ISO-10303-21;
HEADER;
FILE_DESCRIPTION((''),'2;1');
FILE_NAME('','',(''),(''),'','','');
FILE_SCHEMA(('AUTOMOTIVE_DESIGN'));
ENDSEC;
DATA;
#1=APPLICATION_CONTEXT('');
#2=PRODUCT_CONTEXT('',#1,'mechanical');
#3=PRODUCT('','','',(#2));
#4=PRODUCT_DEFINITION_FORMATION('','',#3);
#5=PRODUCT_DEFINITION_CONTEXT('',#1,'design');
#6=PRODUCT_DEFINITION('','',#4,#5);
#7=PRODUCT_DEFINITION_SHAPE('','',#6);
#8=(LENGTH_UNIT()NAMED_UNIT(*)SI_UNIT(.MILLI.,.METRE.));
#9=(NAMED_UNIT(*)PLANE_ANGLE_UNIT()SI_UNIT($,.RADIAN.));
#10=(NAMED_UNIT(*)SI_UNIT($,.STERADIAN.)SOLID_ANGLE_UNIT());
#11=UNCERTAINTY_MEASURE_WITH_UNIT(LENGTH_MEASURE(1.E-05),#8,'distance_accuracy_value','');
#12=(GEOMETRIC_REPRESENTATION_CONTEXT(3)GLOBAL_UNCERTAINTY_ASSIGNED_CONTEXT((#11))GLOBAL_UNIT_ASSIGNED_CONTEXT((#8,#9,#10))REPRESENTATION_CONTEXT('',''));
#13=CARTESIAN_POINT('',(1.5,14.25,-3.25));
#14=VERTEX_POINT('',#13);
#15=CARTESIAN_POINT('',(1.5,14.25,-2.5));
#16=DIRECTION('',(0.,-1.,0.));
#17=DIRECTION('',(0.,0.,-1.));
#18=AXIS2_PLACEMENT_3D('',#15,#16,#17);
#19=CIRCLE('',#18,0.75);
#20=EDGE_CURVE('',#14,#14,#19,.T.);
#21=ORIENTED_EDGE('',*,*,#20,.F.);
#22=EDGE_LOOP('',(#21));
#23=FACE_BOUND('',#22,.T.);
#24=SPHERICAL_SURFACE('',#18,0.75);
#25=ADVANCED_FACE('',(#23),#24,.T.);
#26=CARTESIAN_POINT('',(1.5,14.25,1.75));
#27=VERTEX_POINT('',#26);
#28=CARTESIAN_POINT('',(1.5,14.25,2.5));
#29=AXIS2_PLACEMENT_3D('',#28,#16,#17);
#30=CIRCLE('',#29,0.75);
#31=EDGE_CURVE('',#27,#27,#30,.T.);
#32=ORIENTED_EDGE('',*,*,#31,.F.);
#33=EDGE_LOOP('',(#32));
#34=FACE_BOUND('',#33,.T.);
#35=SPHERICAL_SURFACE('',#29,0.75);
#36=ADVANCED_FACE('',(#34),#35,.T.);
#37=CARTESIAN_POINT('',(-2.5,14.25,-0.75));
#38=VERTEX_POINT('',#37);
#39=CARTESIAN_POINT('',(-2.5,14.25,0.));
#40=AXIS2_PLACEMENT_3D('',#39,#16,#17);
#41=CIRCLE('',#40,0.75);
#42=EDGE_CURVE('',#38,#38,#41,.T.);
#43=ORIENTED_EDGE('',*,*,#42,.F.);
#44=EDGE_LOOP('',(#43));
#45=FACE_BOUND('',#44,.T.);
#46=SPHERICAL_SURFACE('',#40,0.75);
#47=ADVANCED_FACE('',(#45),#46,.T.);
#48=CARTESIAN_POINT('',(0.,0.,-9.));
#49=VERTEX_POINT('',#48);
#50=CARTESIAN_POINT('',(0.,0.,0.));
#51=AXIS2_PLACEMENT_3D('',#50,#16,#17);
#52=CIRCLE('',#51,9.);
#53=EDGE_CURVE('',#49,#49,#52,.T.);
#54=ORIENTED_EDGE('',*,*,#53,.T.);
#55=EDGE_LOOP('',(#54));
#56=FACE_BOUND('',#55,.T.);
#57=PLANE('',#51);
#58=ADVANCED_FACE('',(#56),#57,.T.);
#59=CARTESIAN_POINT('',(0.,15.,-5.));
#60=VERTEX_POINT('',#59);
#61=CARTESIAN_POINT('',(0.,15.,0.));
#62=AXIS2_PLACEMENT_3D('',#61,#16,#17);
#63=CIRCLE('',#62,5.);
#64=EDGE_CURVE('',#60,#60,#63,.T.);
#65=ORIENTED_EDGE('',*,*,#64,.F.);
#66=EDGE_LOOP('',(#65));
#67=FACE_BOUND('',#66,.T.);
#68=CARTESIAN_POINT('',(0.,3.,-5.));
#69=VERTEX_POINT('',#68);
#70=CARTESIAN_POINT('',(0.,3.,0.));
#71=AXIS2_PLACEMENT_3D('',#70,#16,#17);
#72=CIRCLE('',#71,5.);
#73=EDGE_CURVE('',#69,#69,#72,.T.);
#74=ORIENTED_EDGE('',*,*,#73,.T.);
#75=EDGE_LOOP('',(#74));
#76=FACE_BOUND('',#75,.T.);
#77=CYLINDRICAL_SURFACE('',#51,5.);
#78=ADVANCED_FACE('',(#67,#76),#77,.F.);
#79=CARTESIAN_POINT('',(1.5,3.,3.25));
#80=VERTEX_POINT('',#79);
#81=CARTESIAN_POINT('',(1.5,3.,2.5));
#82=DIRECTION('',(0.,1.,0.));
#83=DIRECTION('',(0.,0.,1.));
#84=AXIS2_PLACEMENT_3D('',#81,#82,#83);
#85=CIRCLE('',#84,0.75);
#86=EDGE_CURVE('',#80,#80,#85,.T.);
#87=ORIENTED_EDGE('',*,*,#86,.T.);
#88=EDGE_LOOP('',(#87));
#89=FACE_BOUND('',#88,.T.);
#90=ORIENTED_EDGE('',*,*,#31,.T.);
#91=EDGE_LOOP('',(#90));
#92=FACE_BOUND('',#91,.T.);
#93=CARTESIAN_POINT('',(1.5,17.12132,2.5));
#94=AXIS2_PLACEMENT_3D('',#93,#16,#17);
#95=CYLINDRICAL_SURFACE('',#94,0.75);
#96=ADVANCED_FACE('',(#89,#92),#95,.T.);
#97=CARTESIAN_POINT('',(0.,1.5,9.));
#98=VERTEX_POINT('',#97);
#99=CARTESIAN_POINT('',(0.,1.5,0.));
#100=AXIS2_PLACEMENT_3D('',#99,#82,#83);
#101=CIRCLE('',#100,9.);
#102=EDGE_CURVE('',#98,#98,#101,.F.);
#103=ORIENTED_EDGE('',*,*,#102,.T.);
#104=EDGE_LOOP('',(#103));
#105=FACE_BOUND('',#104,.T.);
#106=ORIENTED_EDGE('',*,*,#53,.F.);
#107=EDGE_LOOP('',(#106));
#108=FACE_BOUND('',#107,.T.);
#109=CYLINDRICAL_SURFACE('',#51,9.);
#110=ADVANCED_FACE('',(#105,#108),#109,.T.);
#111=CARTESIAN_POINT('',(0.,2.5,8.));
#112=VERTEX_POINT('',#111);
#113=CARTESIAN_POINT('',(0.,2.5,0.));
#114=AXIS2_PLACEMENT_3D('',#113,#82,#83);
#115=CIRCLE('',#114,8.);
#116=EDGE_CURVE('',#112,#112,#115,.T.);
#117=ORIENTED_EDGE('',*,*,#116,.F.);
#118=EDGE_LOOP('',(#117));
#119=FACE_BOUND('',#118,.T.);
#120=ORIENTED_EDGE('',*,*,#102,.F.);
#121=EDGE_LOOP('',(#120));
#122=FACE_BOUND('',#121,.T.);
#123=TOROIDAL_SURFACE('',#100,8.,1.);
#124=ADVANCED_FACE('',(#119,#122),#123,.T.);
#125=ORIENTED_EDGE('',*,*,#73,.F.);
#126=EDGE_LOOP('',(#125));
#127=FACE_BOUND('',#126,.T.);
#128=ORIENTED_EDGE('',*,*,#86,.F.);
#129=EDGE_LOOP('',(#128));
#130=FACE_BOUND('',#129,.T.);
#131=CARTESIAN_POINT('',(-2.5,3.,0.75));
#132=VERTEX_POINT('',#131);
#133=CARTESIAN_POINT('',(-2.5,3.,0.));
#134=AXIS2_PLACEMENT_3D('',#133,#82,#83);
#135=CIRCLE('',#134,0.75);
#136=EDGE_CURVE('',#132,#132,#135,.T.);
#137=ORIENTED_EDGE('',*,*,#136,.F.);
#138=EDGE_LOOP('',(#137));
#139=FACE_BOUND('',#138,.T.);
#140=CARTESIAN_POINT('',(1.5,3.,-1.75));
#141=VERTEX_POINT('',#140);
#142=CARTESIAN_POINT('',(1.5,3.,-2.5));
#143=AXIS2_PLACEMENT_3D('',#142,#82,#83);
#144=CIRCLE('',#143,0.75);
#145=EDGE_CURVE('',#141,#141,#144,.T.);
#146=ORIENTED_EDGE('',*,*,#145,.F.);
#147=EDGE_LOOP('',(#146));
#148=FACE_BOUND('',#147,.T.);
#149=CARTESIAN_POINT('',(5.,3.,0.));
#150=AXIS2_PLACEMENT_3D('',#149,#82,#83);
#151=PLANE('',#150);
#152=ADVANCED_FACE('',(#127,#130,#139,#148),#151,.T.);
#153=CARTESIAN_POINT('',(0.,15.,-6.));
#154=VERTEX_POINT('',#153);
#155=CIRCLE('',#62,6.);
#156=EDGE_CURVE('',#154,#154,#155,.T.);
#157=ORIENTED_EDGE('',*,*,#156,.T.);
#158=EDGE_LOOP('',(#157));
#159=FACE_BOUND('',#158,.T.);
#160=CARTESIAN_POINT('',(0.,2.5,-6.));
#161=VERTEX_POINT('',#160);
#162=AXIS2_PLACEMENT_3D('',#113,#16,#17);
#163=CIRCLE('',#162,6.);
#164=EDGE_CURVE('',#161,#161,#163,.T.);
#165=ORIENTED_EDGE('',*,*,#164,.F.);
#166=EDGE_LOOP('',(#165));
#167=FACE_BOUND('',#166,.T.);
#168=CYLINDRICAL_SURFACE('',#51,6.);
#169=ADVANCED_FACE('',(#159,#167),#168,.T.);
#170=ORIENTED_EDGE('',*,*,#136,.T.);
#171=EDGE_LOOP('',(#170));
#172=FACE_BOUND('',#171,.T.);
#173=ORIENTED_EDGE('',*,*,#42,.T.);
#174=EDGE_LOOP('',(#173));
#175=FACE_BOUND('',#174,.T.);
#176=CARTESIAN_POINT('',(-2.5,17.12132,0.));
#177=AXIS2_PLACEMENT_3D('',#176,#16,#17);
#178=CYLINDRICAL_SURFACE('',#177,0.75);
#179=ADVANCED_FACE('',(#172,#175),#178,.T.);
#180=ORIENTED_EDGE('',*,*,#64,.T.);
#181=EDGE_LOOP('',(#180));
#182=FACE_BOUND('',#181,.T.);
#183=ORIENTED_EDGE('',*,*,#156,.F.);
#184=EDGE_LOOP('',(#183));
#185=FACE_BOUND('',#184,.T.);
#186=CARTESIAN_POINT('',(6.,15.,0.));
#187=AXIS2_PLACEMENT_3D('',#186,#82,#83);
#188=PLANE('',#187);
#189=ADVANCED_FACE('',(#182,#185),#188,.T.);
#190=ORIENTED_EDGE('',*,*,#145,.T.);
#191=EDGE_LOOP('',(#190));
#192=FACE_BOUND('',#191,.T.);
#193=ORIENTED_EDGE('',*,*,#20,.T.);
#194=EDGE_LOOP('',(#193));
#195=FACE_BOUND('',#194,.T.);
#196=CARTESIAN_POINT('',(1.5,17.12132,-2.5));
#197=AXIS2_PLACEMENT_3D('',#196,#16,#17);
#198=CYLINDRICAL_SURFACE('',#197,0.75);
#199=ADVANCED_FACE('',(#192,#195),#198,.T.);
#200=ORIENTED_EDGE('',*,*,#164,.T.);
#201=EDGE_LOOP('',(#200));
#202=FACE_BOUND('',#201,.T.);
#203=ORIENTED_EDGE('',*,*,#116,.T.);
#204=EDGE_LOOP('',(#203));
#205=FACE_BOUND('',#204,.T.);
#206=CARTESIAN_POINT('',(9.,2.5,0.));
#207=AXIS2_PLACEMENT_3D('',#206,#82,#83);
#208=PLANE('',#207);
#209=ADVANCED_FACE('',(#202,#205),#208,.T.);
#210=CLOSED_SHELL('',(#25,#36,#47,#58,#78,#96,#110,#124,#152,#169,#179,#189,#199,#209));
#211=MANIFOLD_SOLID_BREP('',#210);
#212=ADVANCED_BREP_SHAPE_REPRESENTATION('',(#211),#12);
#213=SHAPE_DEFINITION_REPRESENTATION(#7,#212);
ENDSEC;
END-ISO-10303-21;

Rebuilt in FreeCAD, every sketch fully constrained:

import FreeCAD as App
import Part
import Sketcher
from FreeCAD import Vector


def edges_at(feature, points):
    """Names of the edges that pass closest to the given points."""
    edges = feature.Shape.Edges
    near = lambda p: min(range(len(edges)), key=lambda i: edges[i].distToShape(Part.Vertex(*p))[0])
    return sorted({f"Edge{near(p) + 1}" for p in points})

doc = App.newDocument("Part")
body = doc.addObject("PartDesign::Body", "Body")

sketch1 = doc.addObject("Sketcher::SketchObject", "Sketch")
body.addObject(sketch1)
sketch1.AttachmentSupport = (doc.XY_Plane, [""])
sketch1.MapMode = "FlatFace"
sketch1.addGeometry(Part.LineSegment(Vector(0, 0, 0), Vector(9, 0, 0)), False)
sketch1.addGeometry(Part.LineSegment(Vector(9, 0, 0), Vector(9, 2.5, 0)), False)
sketch1.addGeometry(Part.LineSegment(Vector(9, 2.5, 0), Vector(6, 2.5, 0)), False)
sketch1.addGeometry(Part.LineSegment(Vector(6, 2.5, 0), Vector(6, 15, 0)), False)
sketch1.addGeometry(Part.LineSegment(Vector(6, 15, 0), Vector(5, 15, 0)), False)
sketch1.addGeometry(Part.LineSegment(Vector(5, 15, 0), Vector(5, 3, 0)), False)
sketch1.addGeometry(Part.LineSegment(Vector(5, 3, 0), Vector(0, 3, 0)), False)
sketch1.addGeometry(Part.LineSegment(Vector(0, 3, 0), Vector(0, 0, 0)), False)
sketch1.addConstraint(Sketcher.Constraint("Coincident", 0, 2, 1, 1))
sketch1.addConstraint(Sketcher.Constraint("Coincident", 1, 2, 2, 1))
sketch1.addConstraint(Sketcher.Constraint("Coincident", 2, 2, 3, 1))
sketch1.addConstraint(Sketcher.Constraint("Coincident", 3, 2, 4, 1))
sketch1.addConstraint(Sketcher.Constraint("Coincident", 4, 2, 5, 1))
sketch1.addConstraint(Sketcher.Constraint("Coincident", 5, 2, 6, 1))
sketch1.addConstraint(Sketcher.Constraint("Coincident", 6, 2, 7, 1))
sketch1.addConstraint(Sketcher.Constraint("Coincident", 7, 2, 0, 1))
sketch1.addConstraint(Sketcher.Constraint("Horizontal", 0))
sketch1.addConstraint(Sketcher.Constraint("Vertical", 1))
sketch1.addConstraint(Sketcher.Constraint("Horizontal", 2))
sketch1.addConstraint(Sketcher.Constraint("Vertical", 3))
sketch1.addConstraint(Sketcher.Constraint("Horizontal", 4))
sketch1.addConstraint(Sketcher.Constraint("Vertical", 5))
sketch1.addConstraint(Sketcher.Constraint("Horizontal", 6))
sketch1.addConstraint(Sketcher.Constraint("Vertical", 7))
sketch1.addConstraint(Sketcher.Constraint("Coincident", 7, 2, -1, 1))
sketch1.addConstraint(Sketcher.Constraint("Equal", 2, 7))
sketch1.addConstraint(Sketcher.Constraint("DistanceX", 0, 1, 0, 2, 9.0))
sketch1.addConstraint(Sketcher.Constraint("DistanceX", 2, 2, 2, 1, 3.0))
sketch1.addConstraint(Sketcher.Constraint("DistanceX", 4, 2, 4, 1, 1.0))
sketch1.addConstraint(Sketcher.Constraint("DistanceY", 5, 2, 5, 1, 12.0))
sketch1.addConstraint(Sketcher.Constraint("DistanceY", 1, 1, 1, 2, 2.5))
revolution = doc.addObject("PartDesign::Revolution", "Revolution")
body.addObject(revolution)
revolution.Profile = sketch1
revolution.ReferenceAxis = (sketch1, ["V_Axis"])
revolution.Angle = 360

sketch2 = doc.addObject("Sketcher::SketchObject", "Sketch001")
body.addObject(sketch2)
sketch2.AttachmentSupport = (doc.XZ_Plane, [""])
sketch2.MapMode = "FlatFace"
sketch2.AttachmentOffset = App.Placement(Vector(0, 0, -3), App.Rotation())
sketch2.addGeometry(Part.Circle(Vector(1.5, -2.5, 0), Vector(0, 0, 1), 0.8), False)
sketch2.addGeometry(Part.Circle(Vector(1.5, 2.5, 0), Vector(0, 0, 1), 0.8), False)
sketch2.addGeometry(Part.Circle(Vector(-2.5, 0, 0), Vector(0, 0, 1), 0.8), False)
sketch2.addConstraint(Sketcher.Constraint("Equal", 0, 1))
sketch2.addConstraint(Sketcher.Constraint("Equal", 1, 2))
sketch2.addConstraint(Sketcher.Constraint("Symmetric", 0, 3, 1, 3, -1))
sketch2.addConstraint(Sketcher.Constraint("PointOnObject", 2, 3, -1))
sketch2.addConstraint(Sketcher.Constraint("Diameter", 0, 1.5))
sketch2.addConstraint(Sketcher.Constraint("DistanceY", 0, 3, 1, 3, 5.0))
sketch2.addConstraint(Sketcher.Constraint("DistanceX", 2, 3, 0, 3, 4.0))
sketch2.addConstraint(Sketcher.Constraint("DistanceX", -1, 1, 0, 3, 1.5))
pad1 = doc.addObject("PartDesign::Pad", "Pad")
body.addObject(pad1)
pad1.Profile = sketch2
pad1.Length = 12
pad1.Reversed = True
doc.recompute()

fillet = doc.addObject("PartDesign::Fillet", "Fillet")
body.addObject(fillet)
fillet.Base = (pad1, edges_at(pad1, [(1.5, 15, -3.25), (1.5, 15, 1.75), (-2.5, 15, -0.75)]))
fillet.Radius = 0.75
doc.recompute()

fillet2 = doc.addObject("PartDesign::Fillet", "Fillet001")
body.addObject(fillet2)
fillet2.Base = (fillet, edges_at(fillet, [(0, 2.5, 9)]))
fillet2.Radius = 1

doc.recompute()
